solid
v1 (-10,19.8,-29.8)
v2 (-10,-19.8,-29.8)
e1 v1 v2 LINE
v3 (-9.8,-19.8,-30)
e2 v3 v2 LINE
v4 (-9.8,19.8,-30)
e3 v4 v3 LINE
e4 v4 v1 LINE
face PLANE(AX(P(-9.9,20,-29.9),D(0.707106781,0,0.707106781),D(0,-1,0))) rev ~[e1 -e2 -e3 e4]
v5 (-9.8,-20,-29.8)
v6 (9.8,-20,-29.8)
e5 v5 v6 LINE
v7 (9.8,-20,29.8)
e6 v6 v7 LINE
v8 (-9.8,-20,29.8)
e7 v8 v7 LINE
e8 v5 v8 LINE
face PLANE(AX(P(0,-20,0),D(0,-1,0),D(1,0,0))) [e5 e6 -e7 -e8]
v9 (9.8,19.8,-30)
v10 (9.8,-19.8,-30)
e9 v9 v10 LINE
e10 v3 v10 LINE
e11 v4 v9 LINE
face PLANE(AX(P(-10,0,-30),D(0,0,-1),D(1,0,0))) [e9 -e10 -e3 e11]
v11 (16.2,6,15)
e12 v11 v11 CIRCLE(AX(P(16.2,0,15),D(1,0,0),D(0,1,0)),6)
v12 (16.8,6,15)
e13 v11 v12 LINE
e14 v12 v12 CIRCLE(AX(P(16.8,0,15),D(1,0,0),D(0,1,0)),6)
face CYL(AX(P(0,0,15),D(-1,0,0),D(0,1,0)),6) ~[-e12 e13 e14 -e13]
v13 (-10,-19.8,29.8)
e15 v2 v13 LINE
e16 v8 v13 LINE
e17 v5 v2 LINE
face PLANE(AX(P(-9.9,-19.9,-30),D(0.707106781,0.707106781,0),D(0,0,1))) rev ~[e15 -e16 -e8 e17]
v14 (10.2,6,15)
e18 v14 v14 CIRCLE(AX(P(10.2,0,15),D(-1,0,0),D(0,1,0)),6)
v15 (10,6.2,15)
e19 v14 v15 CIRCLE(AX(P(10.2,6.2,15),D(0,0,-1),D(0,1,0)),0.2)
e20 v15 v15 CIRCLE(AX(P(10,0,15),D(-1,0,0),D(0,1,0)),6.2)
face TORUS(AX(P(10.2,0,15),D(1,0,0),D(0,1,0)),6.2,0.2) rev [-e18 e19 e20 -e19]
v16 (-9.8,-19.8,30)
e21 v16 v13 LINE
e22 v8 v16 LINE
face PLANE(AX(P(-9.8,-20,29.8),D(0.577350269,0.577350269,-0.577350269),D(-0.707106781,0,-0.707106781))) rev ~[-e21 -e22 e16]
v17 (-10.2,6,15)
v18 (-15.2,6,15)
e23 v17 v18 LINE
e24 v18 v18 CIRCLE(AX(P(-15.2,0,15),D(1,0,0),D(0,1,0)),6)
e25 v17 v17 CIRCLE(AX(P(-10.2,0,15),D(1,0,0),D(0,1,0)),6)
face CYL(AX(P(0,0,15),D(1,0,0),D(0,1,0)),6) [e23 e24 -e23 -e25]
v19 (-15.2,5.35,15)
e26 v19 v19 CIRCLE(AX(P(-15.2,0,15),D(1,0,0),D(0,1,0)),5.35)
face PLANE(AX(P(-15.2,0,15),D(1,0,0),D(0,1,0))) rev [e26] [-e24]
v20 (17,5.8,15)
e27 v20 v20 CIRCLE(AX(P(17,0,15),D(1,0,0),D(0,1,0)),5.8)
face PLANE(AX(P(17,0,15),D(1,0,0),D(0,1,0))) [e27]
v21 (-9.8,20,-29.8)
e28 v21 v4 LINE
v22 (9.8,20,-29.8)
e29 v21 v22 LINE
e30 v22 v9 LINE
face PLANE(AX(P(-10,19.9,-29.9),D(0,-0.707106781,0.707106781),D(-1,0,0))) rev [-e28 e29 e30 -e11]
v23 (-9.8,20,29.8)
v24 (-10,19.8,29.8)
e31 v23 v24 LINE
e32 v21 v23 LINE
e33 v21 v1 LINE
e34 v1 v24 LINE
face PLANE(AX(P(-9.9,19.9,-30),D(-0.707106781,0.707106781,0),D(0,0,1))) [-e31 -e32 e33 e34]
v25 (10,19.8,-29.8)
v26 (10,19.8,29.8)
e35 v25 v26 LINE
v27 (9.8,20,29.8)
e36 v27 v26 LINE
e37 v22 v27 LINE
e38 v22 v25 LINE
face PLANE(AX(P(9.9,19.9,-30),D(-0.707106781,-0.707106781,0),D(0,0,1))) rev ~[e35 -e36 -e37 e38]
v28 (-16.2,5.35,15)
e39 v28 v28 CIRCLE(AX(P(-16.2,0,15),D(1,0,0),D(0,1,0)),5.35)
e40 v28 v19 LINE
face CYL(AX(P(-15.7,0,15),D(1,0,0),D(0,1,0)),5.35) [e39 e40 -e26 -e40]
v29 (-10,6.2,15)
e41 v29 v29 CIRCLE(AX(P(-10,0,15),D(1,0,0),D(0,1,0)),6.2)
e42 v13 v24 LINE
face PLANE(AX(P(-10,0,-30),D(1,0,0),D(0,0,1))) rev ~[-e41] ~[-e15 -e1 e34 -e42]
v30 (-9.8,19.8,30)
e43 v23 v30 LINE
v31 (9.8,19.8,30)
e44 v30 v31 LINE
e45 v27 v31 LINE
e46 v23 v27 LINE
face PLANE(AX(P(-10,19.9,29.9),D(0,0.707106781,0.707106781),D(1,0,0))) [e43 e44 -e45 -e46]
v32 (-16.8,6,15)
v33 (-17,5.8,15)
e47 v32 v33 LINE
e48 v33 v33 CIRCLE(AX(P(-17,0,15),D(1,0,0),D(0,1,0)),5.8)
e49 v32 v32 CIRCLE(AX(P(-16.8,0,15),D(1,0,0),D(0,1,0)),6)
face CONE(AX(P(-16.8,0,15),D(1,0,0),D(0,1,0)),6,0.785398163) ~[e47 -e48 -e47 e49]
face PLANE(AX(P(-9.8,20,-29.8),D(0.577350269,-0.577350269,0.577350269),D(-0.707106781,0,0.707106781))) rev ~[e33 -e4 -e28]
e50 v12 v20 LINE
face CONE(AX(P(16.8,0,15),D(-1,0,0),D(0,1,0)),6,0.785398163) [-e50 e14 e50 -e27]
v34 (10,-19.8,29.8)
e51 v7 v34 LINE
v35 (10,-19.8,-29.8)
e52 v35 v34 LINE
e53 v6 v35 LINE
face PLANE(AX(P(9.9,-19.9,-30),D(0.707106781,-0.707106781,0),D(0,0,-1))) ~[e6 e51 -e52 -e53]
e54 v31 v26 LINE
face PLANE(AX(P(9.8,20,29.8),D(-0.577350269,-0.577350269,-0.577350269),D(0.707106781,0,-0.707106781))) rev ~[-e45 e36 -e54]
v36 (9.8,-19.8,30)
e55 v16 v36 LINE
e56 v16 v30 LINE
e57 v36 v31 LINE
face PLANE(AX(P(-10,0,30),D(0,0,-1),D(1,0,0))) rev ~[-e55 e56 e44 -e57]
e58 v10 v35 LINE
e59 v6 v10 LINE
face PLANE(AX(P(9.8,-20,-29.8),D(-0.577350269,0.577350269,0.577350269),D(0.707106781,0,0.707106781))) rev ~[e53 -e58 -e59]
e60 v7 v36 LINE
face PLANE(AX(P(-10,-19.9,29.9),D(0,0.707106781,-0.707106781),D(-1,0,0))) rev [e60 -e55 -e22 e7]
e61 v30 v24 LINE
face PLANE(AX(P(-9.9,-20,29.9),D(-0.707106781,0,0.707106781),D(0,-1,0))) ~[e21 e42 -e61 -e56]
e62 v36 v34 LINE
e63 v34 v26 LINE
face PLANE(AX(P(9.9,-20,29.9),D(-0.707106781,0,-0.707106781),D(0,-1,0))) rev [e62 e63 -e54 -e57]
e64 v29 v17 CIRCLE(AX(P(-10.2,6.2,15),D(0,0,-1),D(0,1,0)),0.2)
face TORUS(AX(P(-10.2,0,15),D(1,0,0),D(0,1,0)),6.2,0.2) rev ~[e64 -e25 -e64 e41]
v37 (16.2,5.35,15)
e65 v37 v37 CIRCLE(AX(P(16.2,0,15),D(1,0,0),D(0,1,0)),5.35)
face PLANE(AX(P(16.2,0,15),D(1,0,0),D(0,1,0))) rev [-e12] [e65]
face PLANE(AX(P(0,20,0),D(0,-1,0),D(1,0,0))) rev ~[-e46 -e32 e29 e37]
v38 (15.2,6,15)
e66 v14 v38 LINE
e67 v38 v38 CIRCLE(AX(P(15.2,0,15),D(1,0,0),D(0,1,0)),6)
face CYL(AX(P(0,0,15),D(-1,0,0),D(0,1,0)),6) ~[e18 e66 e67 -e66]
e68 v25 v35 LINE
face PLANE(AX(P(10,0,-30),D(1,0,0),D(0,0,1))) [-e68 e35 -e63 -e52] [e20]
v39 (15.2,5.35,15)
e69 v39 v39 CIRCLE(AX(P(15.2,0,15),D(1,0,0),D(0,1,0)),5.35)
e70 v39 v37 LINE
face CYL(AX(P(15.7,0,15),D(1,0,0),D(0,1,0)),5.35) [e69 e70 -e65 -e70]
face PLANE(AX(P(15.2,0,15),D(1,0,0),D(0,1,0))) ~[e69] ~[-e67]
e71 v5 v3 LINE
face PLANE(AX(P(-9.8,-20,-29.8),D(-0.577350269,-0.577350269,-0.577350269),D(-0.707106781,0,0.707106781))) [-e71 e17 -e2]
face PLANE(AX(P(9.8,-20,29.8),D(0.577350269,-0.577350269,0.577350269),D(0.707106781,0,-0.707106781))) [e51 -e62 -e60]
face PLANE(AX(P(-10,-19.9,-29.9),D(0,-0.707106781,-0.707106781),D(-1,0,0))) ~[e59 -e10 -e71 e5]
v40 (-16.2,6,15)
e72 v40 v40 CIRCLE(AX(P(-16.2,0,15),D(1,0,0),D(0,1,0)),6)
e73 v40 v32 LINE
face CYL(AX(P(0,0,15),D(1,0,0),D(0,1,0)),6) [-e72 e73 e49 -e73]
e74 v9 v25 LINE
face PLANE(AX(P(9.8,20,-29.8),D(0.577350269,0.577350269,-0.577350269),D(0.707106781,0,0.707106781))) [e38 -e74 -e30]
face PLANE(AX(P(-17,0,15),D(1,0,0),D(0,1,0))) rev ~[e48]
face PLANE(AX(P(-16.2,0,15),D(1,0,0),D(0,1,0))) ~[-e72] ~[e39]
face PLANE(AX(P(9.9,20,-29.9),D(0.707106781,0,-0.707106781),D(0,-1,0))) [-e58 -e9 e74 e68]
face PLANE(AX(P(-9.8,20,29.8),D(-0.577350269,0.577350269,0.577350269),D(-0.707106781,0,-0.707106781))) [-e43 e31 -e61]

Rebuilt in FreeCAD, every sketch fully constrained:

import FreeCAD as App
import Part
import Sketcher

V = App.Vector


def edges_at(feature, points):
    """Names of the edges that pass closest to the given points."""
    edges = feature.Shape.Edges
    near = lambda p: min(range(len(edges)), key=lambda i: edges[i].distToShape(Part.Vertex(*p))[0])
    return sorted({f"Edge{near(p) + 1}" for p in points})

doc = App.newDocument("Part")
body = doc.addObject("PartDesign::Body", "Body")

# Sketch on XZ plane
sketch1 = doc.addObject("Sketcher::SketchObject", "Sketch")
body.addObject(sketch1)
sketch1.AttachmentSupport = (doc.XZ_Plane, [""])
sketch1.MapMode = "FlatFace"
sketch1.addGeometry([
    Part.LineSegment(V(-10, 30, 0), V(-10, -30, 0)),
    Part.LineSegment(V(-10, -30, 0), V(10, -30, 0)),
    Part.LineSegment(V(10, -30, 0), V(10, 30, 0)),
    Part.LineSegment(V(10, 30, 0), V(-10, 30, 0)),
], False)
sketch1.addConstraint([
    Sketcher.Constraint("Coincident", 0, 2, 1, 1),
    Sketcher.Constraint("Coincident", 1, 2, 2, 1),
    Sketcher.Constraint("Coincident", 2, 2, 3, 1),
    Sketcher.Constraint("Coincident", 3, 2, 0, 1),
    Sketcher.Constraint("Vertical", 0),
    Sketcher.Constraint("Horizontal", 1),
    Sketcher.Constraint("Vertical", 2),
    Sketcher.Constraint("Horizontal", 3),
    Sketcher.Constraint("Symmetric", 0, 2, 2, 2, -1, 1),
    Sketcher.Constraint("DistanceX", 1, 1, 1, 2, 20.0),
    Sketcher.Constraint("DistanceY", 0, 2, 0, 1, 60.0),
])
pad1 = doc.addObject("PartDesign::Pad", "Pad")
body.addObject(pad1)
pad1.Profile = sketch1
pad1.Type = "TwoLengths"
pad1.Length = 20
pad1.Length2 = 20
doc.recompute()

chamfer = doc.addObject("PartDesign::Chamfer", "Chamfer")
body.addObject(chamfer)
chamfer.Base = (pad1, ["Edge1"])
chamfer.UseAllEdges = True
chamfer.Size = 0.2

# Sketch on YZ plane
sketch2 = doc.addObject("Sketcher::SketchObject", "Sketch001")
body.addObject(sketch2)
sketch2.AttachmentSupport = (doc.YZ_Plane, [""])
sketch2.MapMode = "FlatFace"
sketch2.addGeometry(Part.Circle(V(0, 15, 0), V(0, 0, 1), 6), False)
sketch2.addConstraint([
    Sketcher.Constraint("PointOnObject", 0, 3, -2),
    Sketcher.Constraint("Diameter", 0, 12.0),
    Sketcher.Constraint("DistanceY", -1, 1, 0, 3, 15.0),
])
pad2 = doc.addObject("PartDesign::Pad", "Pad001")
body.addObject(pad2)
pad2.Profile = sketch2
pad2.Type = "TwoLengths"
pad2.Length = 17
pad2.Length2 = 17
pad2.Reversed = True
doc.recompute()

fillet = doc.addObject("PartDesign::Fillet", "Fillet")
body.addObject(fillet)
fillet.Base = (pad2, edges_at(pad2, [(-10, -6, 15), (10, -6, 15)]))
fillet.Radius = 0.2
doc.recompute()

chamfer2 = doc.addObject("PartDesign::Chamfer", "Chamfer001")
body.addObject(chamfer2)
chamfer2.Base = (fillet, edges_at(fillet, [(17, -6, 15), (-17, -6, 15)]))
chamfer2.Size = 0.2

# Sketch on XY plane
sketch3 = doc.addObject("Sketcher::SketchObject", "Sketch002")
body.addObject(sketch3)
sketch3.AttachmentSupport = (doc.XY_Plane, [""])
sketch3.MapMode = "FlatFace"
sketch3.AttachmentOffset = App.Placement(V(0, 0, 15), App.Rotation())
sketch3.addGeometry([
    Part.LineSegment(V(-16.2, 6, 0), V(-16.2, 5.35, 0)),  # 0
    Part.LineSegment(V(-16.2, 5.35, 0), V(-15.2, 5.35, 0)),  # 1
    Part.LineSegment(V(-15.2, 5.35, 0), V(-15.2, 6, 0)),  # 2
    Part.LineSegment(V(-15.2, 6, 0), V(-16.2, 6, 0)),  # 3
    Part.LineSegment(V(15.2, 6, 0), V(15.2, 5.35, 0)),  # 4
    Part.LineSegment(V(15.2, 5.35, 0), V(16.2, 5.35, 0)),  # 5
    Part.LineSegment(V(16.2, 5.35, 0), V(16.2, 6, 0)),  # 6
    Part.LineSegment(V(16.2, 6, 0), V(15.2, 6, 0)),  # 7
], False)
sketch3.addConstraint([
    Sketcher.Constraint("Coincident", 0, 2, 1, 1),
    Sketcher.Constraint("Coincident", 1, 2, 2, 1),
    Sketcher.Constraint("Coincident", 2, 2, 3, 1),
    Sketcher.Constraint("Coincident", 3, 2, 0, 1),
    Sketcher.Constraint("Coincident", 4, 2, 5, 1),
    Sketcher.Constraint("Coincident", 5, 2, 6, 1),
    Sketcher.Constraint("Coincident", 6, 2, 7, 1),
    Sketcher.Constraint("Coincident", 7, 2, 4, 1),
    Sketcher.Constraint("Vertical", 0),
    Sketcher.Constraint("Horizontal", 1),
    Sketcher.Constraint("Vertical", 2),
    Sketcher.Constraint("Horizontal", 3),
    Sketcher.Constraint("Vertical", 4),
    Sketcher.Constraint("Horizontal", 5),
    Sketcher.Constraint("Vertical", 6),
    Sketcher.Constraint("Horizontal", 7),
    Sketcher.Constraint("Symmetric", 1, 2, 4, 2, -2),
    Sketcher.Constraint("Symmetric", 3, 2, 6, 2, -2),
    Sketcher.Constraint("DistanceX", 1, 1, 1, 2, 1.0),
    Sketcher.Constraint("DistanceY", -1, 1, 2, 2, 6.0),
    Sketcher.Constraint("DistanceY", 0, 2, 0, 1, 0.65),
    Sketcher.Constraint("DistanceX", 0, 2, -1, 1, 16.2),
])
groove = doc.addObject("PartDesign::Groove", "Groove")
body.addObject(groove)
groove.Profile = sketch3
groove.ReferenceAxis = (sketch3, ["H_Axis"])
groove.Angle = 360

doc.recompute()
